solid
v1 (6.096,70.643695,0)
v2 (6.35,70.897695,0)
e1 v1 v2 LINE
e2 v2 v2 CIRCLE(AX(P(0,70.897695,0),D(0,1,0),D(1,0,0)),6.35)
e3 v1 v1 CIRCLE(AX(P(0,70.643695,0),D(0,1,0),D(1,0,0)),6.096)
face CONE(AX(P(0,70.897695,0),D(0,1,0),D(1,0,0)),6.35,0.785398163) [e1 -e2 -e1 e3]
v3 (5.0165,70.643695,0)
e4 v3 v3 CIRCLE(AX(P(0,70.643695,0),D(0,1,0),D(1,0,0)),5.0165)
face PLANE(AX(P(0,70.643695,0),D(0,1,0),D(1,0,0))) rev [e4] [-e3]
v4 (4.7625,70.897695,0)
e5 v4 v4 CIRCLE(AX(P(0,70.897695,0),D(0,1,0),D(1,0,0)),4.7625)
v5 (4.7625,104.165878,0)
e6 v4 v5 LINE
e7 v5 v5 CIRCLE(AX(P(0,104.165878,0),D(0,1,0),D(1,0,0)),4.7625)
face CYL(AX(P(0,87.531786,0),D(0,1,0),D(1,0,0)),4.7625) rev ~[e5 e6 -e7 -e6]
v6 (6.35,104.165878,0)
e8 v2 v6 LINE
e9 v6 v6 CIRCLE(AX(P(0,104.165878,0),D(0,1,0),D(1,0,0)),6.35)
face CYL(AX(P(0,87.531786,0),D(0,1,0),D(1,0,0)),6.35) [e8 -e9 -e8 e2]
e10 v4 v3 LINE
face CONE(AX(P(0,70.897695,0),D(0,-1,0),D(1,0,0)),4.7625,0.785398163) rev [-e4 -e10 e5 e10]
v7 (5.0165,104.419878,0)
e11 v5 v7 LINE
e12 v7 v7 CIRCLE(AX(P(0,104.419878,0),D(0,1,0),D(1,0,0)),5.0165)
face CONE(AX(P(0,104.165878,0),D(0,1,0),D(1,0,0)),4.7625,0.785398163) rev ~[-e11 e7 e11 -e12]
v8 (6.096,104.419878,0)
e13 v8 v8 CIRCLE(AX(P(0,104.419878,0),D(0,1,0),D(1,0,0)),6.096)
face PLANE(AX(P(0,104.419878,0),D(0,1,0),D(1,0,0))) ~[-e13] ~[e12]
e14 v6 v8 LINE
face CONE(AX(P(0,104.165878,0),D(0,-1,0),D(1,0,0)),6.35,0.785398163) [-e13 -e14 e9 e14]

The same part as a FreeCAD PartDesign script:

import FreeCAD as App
import Part
import Sketcher
Q = App.Units.Quantity


def edges_at(feature, points):
    """Names of the edges that pass closest to the given points."""
    edges = feature.Shape.Edges
    near = lambda p: min(range(len(edges)), key=lambda i: edges[i].distToShape(Part.Vertex(*p))[0])
    return sorted({f"Edge{near(p) + 1}" for p in points})

doc = App.newDocument("Part")
params = doc.addObject("Spreadsheet::Sheet", "Params")
for row, (alias, value) in enumerate([
    ("sketch1_width", "0.0625 in"),
    ("revolution_angle", "360 deg"),
    ("chamfer_size", "0.01 in"),
], start=1):
    params.set(f"A{row}", alias)
    params.set(f"B{row}", "=" + value)
    params.setAlias(f"B{row}", alias)

body = doc.addObject("PartDesign::Body", "Body")

sketch1 = body.newObject("Sketcher::SketchObject", "Sketch")
sketch1.AttachmentSupport = (doc.getObject("XY_Plane"), [""])
sketch1.MapMode = "FlatFace"
sketch1.addGeometry([
    Part.LineSegment(App.Vector(4.8, 104.4, 0), App.Vector(4.8, 70.6, 0)),
    Part.LineSegment(App.Vector(4.8, 70.6, 0), App.Vector(6.3, 70.6, 0)),
    Part.LineSegment(App.Vector(6.3, 70.6, 0), App.Vector(6.3, 104.4, 0)),
    Part.LineSegment(App.Vector(6.3, 104.4, 0), App.Vector(4.8, 104.4, 0)),
], False)
sketch1.addConstraint([
    Sketcher.Constraint("Coincident", 0, 2, 1, 1),
    Sketcher.Constraint("Coincident", 1, 2, 2, 1),
    Sketcher.Constraint("Coincident", 2, 2, 3, 1),
    Sketcher.Constraint("Coincident", 3, 2, 0, 1),
    Sketcher.Constraint("Vertical", 0),
    Sketcher.Constraint("Horizontal", 1),
    Sketcher.Constraint("Vertical", 2),
    Sketcher.Constraint("Horizontal", 3),
    Sketcher.Constraint("DistanceX", 1, 1, 1, 2, Q("0.0625 in")),
    Sketcher.Constraint("DistanceX", -1, 1, 1, 2, Q("0.25 in")),
    Sketcher.Constraint("DistanceY", 0, 2, 0, 1, Q("33.776183 mm")),
    Sketcher.Constraint("DistanceY", -1, 1, 0, 2, Q("70.643695 mm")),
])
sketch1.setExpression("Constraints[8]", "Params.sketch1_width")
revolution = body.newObject("PartDesign::Revolution", "Revolution")
revolution.Profile = sketch1
revolution.ReferenceAxis = (sketch1, ["V_Axis"])
revolution.setExpression("Angle", "Params.revolution_angle")
doc.recompute()

chamfer = body.newObject("PartDesign::Chamfer", "Chamfer")
chamfer.Base = (revolution, edges_at(revolution, [
    (-6.35, 70.644, 0),
    (-6.35, 104.42, 0),
    (-4.763, 104.42, 0),
    (-4.763, 70.644, 0),
]))
chamfer.setExpression("Size", "Params.chamfer_size")

doc.recompute()
